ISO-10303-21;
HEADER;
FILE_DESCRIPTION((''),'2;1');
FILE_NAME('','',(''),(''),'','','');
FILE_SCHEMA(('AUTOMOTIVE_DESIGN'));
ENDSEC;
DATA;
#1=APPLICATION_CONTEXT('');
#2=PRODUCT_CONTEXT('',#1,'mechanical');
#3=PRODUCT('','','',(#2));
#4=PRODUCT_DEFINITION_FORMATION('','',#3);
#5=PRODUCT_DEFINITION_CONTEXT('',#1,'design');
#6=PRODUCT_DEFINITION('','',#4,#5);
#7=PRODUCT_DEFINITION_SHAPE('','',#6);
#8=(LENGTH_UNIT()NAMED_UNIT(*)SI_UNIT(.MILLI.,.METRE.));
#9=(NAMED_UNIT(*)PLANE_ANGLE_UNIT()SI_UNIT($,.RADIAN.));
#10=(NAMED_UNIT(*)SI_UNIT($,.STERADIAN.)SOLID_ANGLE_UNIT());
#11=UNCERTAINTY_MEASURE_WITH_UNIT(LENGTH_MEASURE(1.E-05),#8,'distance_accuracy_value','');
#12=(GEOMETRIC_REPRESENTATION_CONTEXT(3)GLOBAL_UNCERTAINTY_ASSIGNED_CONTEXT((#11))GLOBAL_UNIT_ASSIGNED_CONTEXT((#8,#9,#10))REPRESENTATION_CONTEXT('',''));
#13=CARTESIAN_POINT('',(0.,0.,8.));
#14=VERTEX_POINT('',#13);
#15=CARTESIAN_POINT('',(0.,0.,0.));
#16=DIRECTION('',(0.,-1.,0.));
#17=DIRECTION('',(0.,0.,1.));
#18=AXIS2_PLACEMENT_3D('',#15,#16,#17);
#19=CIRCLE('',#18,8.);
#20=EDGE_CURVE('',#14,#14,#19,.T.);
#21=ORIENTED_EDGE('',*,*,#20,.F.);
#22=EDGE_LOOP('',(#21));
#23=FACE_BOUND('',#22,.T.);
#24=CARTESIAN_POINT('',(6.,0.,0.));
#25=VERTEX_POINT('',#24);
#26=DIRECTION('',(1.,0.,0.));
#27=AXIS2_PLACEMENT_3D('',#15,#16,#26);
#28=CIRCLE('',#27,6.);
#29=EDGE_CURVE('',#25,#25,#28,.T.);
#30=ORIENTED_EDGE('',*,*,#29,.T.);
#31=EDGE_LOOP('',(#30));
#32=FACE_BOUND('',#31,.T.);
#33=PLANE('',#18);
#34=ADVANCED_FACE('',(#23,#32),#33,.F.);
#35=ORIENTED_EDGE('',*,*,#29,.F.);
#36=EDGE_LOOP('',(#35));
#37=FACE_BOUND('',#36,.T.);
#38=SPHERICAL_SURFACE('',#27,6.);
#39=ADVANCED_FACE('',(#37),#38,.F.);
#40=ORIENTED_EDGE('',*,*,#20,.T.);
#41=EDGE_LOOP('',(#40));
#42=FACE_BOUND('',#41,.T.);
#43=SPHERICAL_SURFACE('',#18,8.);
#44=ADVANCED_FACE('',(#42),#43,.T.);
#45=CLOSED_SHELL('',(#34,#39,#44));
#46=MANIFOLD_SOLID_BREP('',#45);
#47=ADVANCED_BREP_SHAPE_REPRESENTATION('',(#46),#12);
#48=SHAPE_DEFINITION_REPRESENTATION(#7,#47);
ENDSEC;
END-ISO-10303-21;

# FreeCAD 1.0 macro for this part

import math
import FreeCAD as App
import Part
import Sketcher

V = App.Vector

doc = App.newDocument("Part")
params = doc.addObject("Spreadsheet::Sheet", "Params")
for row, (alias, value) in enumerate([
    ("sketch1_radius", "8 mm"),
    ("revolution_angle", "180 deg"),
    ("sketch2_radius", "6 mm"),
    ("groove_angle", "360 deg"),
], start=1):
    params.set(f"A{row}", alias)
    params.set(f"B{row}", "=" + value)
    params.setAlias(f"B{row}", alias)

body = doc.addObject("PartDesign::Body", "Body")

sketch1 = body.newObject("Sketcher::SketchObject", "Sketch")
sketch1.AttachmentSupport = (doc.getObject("XZ_Plane"), [""])
sketch1.MapMode = "FlatFace"
sketch1.addGeometry([
    Part.LineSegment(V(0, 8, 0), V(0, -8, 0)),
    Part.ArcOfCircle(Part.Circle(V(0, 0, 0), V(0, 0, 1), 8), math.radians(90), math.radians(270)),
], False)
sketch1.addConstraint([
    Sketcher.Constraint("Coincident", 0, 1, 1, 1),
    Sketcher.Constraint("Coincident", 1, 2, 0, 2),
    Sketcher.Constraint("Vertical", 0),
    Sketcher.Constraint("Coincident", 1, 3, -1, 1),
    Sketcher.Constraint("PointOnObject", 0, 1, -2),
    Sketcher.Constraint("Radius", 1, 8.0),
])
sketch1.setExpression("Constraints[5]", "Params.sketch1_radius")
revolution = body.newObject("PartDesign::Revolution", "Revolution")
revolution.Profile = sketch1
revolution.ReferenceAxis = (sketch1, ["V_Axis"])
revolution.setExpression("Angle", "Params.revolution_angle")

sketch2 = body.newObject("Sketcher::SketchObject", "Sketch001")
sketch2.AttachmentSupport = (doc.getObject("XZ_Plane"), [""])
sketch2.MapMode = "FlatFace"
sketch2.addGeometry([
    Part.LineSegment(V(0, 6, 0), V(0, -6, 0)),
    Part.ArcOfCircle(Part.Circle(V(0, 0, 0), V(0, 0, 1), 6), math.radians(90), math.radians(270)),
], False)
sketch2.addConstraint([
    Sketcher.Constraint("Coincident", 0, 1, 1, 1),
    Sketcher.Constraint("Coincident", 1, 2, 0, 2),
    Sketcher.Constraint("Vertical", 0),
    Sketcher.Constraint("Coincident", 1, 3, -1, 1),
    Sketcher.Constraint("PointOnObject", 0, 1, -2),
    Sketcher.Constraint("Radius", 1, 6.0),
])
sketch2.setExpression("Constraints[5]", "Params.sketch2_radius")
groove = body.newObject("PartDesign::Groove", "Groove")
groove.Profile = sketch2
groove.ReferenceAxis = (sketch2, ["V_Axis"])
groove.setExpression("Angle", "Params.groove_angle")

doc.recompute()
